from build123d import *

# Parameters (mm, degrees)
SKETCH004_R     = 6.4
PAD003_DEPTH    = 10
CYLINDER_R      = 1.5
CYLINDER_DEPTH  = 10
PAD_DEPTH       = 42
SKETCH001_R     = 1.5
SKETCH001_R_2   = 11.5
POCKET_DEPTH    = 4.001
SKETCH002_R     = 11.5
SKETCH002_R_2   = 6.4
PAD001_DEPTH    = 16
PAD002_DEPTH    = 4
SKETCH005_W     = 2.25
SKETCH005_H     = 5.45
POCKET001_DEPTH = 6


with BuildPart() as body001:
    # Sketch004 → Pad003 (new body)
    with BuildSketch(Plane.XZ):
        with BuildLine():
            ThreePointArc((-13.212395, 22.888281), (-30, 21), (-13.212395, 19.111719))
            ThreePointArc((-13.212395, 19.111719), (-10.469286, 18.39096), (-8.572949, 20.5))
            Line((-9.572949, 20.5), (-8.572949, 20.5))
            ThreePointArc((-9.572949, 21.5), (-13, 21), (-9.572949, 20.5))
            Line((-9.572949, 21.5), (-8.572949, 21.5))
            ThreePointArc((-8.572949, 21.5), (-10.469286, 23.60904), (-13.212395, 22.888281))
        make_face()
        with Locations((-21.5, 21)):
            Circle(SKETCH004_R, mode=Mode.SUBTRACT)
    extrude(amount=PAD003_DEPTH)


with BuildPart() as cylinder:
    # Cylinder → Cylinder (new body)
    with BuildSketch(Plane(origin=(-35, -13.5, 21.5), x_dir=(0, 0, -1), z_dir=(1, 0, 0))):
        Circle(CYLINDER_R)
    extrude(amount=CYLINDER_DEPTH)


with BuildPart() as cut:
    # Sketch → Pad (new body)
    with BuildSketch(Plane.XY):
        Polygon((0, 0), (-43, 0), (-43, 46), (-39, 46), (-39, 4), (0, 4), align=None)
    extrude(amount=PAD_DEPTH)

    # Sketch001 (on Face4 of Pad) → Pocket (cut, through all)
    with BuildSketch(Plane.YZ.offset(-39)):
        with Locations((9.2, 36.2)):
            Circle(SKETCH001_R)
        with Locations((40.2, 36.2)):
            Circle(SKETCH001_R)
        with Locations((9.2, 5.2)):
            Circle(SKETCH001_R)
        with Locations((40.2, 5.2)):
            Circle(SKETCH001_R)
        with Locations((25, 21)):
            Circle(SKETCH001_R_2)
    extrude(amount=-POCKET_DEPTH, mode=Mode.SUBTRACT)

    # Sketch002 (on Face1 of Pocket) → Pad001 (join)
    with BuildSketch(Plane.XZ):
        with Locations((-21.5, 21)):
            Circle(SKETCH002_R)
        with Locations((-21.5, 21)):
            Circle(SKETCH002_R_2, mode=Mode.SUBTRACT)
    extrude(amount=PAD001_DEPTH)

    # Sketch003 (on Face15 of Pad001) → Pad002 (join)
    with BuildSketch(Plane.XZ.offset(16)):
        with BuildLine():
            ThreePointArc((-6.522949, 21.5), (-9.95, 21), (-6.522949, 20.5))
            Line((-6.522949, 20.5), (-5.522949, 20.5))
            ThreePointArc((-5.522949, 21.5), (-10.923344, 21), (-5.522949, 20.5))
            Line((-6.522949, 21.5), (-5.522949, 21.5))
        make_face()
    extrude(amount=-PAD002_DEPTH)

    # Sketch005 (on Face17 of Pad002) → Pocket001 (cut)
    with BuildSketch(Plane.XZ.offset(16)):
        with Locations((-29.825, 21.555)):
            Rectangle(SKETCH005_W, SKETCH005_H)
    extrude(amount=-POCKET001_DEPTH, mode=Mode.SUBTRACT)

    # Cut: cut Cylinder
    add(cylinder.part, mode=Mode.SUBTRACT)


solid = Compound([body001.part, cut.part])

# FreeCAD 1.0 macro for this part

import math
import FreeCAD as App
import Part
import Sketcher
from FreeCAD import Vector


def add_polygon(sketch, points):
    """Adds a closed chain of lines whose ends are joined by coincident constraints."""
    first, n = sketch.GeometryCount, len(points)
    for a, b in zip(points, points[1:] + points[:1]):
        sketch.addGeometry(Part.LineSegment(App.Vector(*a, 0), App.Vector(*b, 0)), False)
    for i in range(n):
        sketch.addConstraint(Sketcher.Constraint("Coincident", first + i, 2, first + (i + 1) % n, 1))

doc = App.newDocument("Part")
body = doc.addObject("PartDesign::Body", "Body")

sketch1 = body.newObject("Sketcher::SketchObject", "Sketch")
sketch1.AttachmentSupport = (doc.getObject("XZ_Plane"), [""])
sketch1.MapMode = "FlatFace"
sketch1.addGeometry([
    Part.ArcOfCircle(Part.Circle(Vector(-21.5, 21, 0), Vector(0, 0, 1), 8.5), math.radians(13), math.radians(347)),
    Part.ArcOfCircle(Part.Circle(Vector(-11.2, 21, 0), Vector(0, 0, 1), 2.7), math.radians(-136), math.radians(-11)),
    Part.LineSegment(Vector(-8.6, 20.5, 0), Vector(-9.6, 20.5, 0)),
    Part.ArcOfCircle(Part.Circle(Vector(-11.2, 21, 0), Vector(0, 0, 1), 1.8), math.radians(17), math.radians(343)),
    Part.LineSegment(Vector(-9.6, 21.5, 0), Vector(-8.6, 21.5, 0)),
    Part.ArcOfCircle(Part.Circle(Vector(-11.2, 21, 0), Vector(0, 0, 1), 2.7), math.radians(11), math.radians(136)),
    Part.Circle(Vector(-21.5, 21, 0), Vector(0, 0, 1), 6.4),
], False)
sketch1.addConstraint([
    Sketcher.Constraint("Coincident", 0, 2, 1, 1),
    Sketcher.Constraint("Coincident", 1, 2, 2, 1),
    Sketcher.Constraint("Coincident", 2, 2, 3, 2),
    Sketcher.Constraint("Coincident", 3, 1, 4, 1),
    Sketcher.Constraint("Coincident", 4, 2, 5, 1),
    Sketcher.Constraint("Coincident", 5, 2, 0, 1),
    Sketcher.Constraint("Horizontal", 2),
    Sketcher.Constraint("Horizontal", 4),
    Sketcher.Constraint("Coincident", 3, 3, 1, 3),
    Sketcher.Constraint("Coincident", 5, 3, 1, 3),
    Sketcher.Constraint("Coincident", 6, 3, 0, 3),
    Sketcher.Constraint("Equal", 1, 5),
    Sketcher.Constraint("Horizontal", 0, 3, 1, 3),
    Sketcher.Constraint("Vertical", 2, 2, 3, 1),
    Sketcher.Constraint("Diameter", 6, 12.8),
    Sketcher.Constraint("Radius", 0, 8.5),
    Sketcher.Constraint("DistanceX", 2, 2, 2, 1, 1.0),
    Sketcher.Constraint("Radius", 3, 1.75),
    Sketcher.Constraint("DistanceY", -1, 1, 0, 3, 21.0),
    Sketcher.Constraint("DistanceY", 2, 2, 3, 1, 1.0),
    Sketcher.Constraint("DistanceX", 0, 3, -1, 1, 21.5),
    Sketcher.Constraint("DistanceX", 1, 3, -1, 1, 11.249999),
])
pad1 = body.newObject("PartDesign::Pad", "Pad")
pad1.Profile = sketch1
pad1.Length = 10
body2 = doc.addObject("PartDesign::Body", "Body001")

sketch2 = body2.newObject("Sketcher::SketchObject", "Sketch001")
sketch2.AttachmentSupport = (doc.getObject("YZ_Plane001"), [""])
sketch2.MapMode = "FlatFace"
sketch2.AttachmentOffset = App.Placement(Vector(0, 0, -35), App.Rotation())
sketch2.addGeometry(Part.Circle(Vector(-13.5, 21.5, 0), Vector(0, 0, 1), 1.5), False)
sketch2.addConstraint([
    Sketcher.Constraint("Diameter", 0, 3.0),
    Sketcher.Constraint("DistanceX", 0, 3, -1, 1, 13.5),
    Sketcher.Constraint("DistanceY", -1, 1, 0, 3, 21.5),
])
pad2 = body2.newObject("PartDesign::Pad", "Pad001")
pad2.Profile = sketch2
pad2.Length = 10
body3 = doc.addObject("PartDesign::Body", "Body002")

sketch3 = body3.newObject("Sketcher::SketchObject", "Sketch002")
sketch3.AttachmentSupport = (doc.getObject("XY_Plane002"), [""])
sketch3.MapMode = "FlatFace"
add_polygon(sketch3, [(-43, 0), (0, 0), (0, 4), (-39, 4), (-39, 46), (-43, 46)])
sketch3.addConstraint([
    Sketcher.Constraint("Horizontal", 0),
    Sketcher.Constraint("Vertical", 1),
    Sketcher.Constraint("Horizontal", 2),
    Sketcher.Constraint("Vertical", 3),
    Sketcher.Constraint("Horizontal", 4),
    Sketcher.Constraint("Vertical", 5),
    Sketcher.Constraint("Coincident", 0, 2, -1, 1),
    Sketcher.Constraint("Equal", 4, 1),
    Sketcher.Constraint("DistanceX", 0, 1, 0, 2, 43.0),
    Sketcher.Constraint("DistanceX", 2, 2, 2, 1, 39.0),
    Sketcher.Constraint("DistanceY", 3, 1, 3, 2, 42.0),
])
pad3 = body3.newObject("PartDesign::Pad", "Pad002")
pad3.Profile = sketch3
pad3.Length = 42

sketch4 = body3.newObject("Sketcher::SketchObject", "Sketch003")
sketch4.AttachmentSupport = (doc.getObject("YZ_Plane002"), [""])
sketch4.MapMode = "FlatFace"
sketch4.AttachmentOffset = App.Placement(Vector(0, 0, -39), App.Rotation())
sketch4.addGeometry([
    Part.Circle(Vector(9.2, 36.2, 0), Vector(0, 0, 1), 1.5),
    Part.Circle(Vector(40.2, 36.2, 0), Vector(0, 0, 1), 1.5),
    Part.Circle(Vector(9.2, 5.2, 0), Vector(0, 0, 1), 1.5),
    Part.Circle(Vector(40.2, 5.2, 0), Vector(0, 0, 1), 1.5),
    Part.Circle(Vector(25, 21, 0), Vector(0, 0, 1), 11.5),
], False)
sketch4.addConstraint([
    Sketcher.Constraint("Equal", 0, 1),
    Sketcher.Constraint("Equal", 1, 2),
    Sketcher.Constraint("Equal", 2, 3),
    Sketcher.Constraint("Horizontal", 0, 3, 1, 3),
    Sketcher.Constraint("Horizontal", 2, 3, 3, 3),
    Sketcher.Constraint("Vertical", 0, 3, 2, 3),
    Sketcher.Constraint("Vertical", 1, 3, 3, 3),
    Sketcher.Constraint("Diameter", 0, 3.0),
    Sketcher.Constraint("Diameter", 4, 23.0),
    Sketcher.Constraint("DistanceX", -1, 1, 4, 3, 25.0),
    Sketcher.Constraint("DistanceY", -1, 1, 4, 3, 21.0),
    Sketcher.Constraint("DistanceX", 0, 3, 1, 3, 31.0),
    Sketcher.Constraint("DistanceY", 2, 3, 0, 3, 31.0),
    Sketcher.Constraint("DistanceX", -1, 1, 0, 3, 9.2),
    Sketcher.Constraint("DistanceY", -1, 1, 0, 3, 36.2),
])
pocket1 = body3.newObject("PartDesign::Pocket", "Pocket")
pocket1.Profile = sketch4
pocket1.Type = "ThroughAll"

sketch5 = body3.newObject("Sketcher::SketchObject", "Sketch004")
sketch5.AttachmentSupport = (doc.getObject("XZ_Plane002"), [""])
sketch5.MapMode = "FlatFace"
sketch5.addGeometry([
    Part.Circle(Vector(-22, 21, 0), Vector(0, 0, 1), 12),
    Part.Circle(Vector(-22, 21, 0), Vector(0, 0, 1), 6),
], False)
sketch5.addConstraint([
    Sketcher.Constraint("Coincident", 1, 3, 0, 3),
    Sketcher.Constraint("Diameter", 0, 23.0),
    Sketcher.Constraint("Diameter", 1, 12.8),
    Sketcher.Constraint("DistanceY", -1, 1, 0, 3, 21.0),
    Sketcher.Constraint("DistanceX", 0, 3, -1, 1, 21.5),
])
pad4 = body3.newObject("PartDesign::Pad", "Pad003")
pad4.Profile = sketch5
pad4.Length = 16

sketch6 = body3.newObject("Sketcher::SketchObject", "Sketch005")
sketch6.AttachmentSupport = (doc.getObject("XZ_Plane002"), [""])
sketch6.MapMode = "FlatFace"
sketch6.AttachmentOffset = App.Placement(Vector(0, 0, 16), App.Rotation())
sketch6.addGeometry([
    Part.ArcOfCircle(Part.Circle(Vector(-8.2, 21, 0), Vector(0, 0, 1), 1.8), math.radians(17), math.radians(343)),
    Part.LineSegment(Vector(-6.5, 21.5, 0), Vector(-5.5, 21.5, 0)),
    Part.ArcOfCircle(Part.Circle(Vector(-8.2, 21, 0), Vector(0, 0, 1), 2.7), math.radians(11), math.radians(349)),
    Part.LineSegment(Vector(-5.5, 20.5, 0), Vector(-6.5, 20.5, 0)),
], False)
sketch6.addConstraint([
    Sketcher.Constraint("Coincident", 0, 1, 1, 1),
    Sketcher.Constraint("Coincident", 1, 2, 2, 1),
    Sketcher.Constraint("Coincident", 2, 2, 3, 1),
    Sketcher.Constraint("Coincident", 3, 2, 0, 2),
    Sketcher.Constraint("Horizontal", 1),
    Sketcher.Constraint("Horizontal", 3),
    Sketcher.Constraint("Coincident", 2, 3, 0, 3),
    Sketcher.Constraint("Vertical", 1, 2, 2, 2),
    Sketcher.Constraint("DistanceX", 1, 1, 1, 2, 1.0),
    Sketcher.Constraint("Radius", 0, 1.75),
    Sketcher.Constraint("DistanceY", -1, 1, 0, 3, 21.0),
    Sketcher.Constraint("DistanceY", 2, 2, 1, 2, 1.0),
    Sketcher.Constraint("DistanceX", 0, 3, -1, 1, 8.2),
])
pad5 = body3.newObject("PartDesign::Pad", "Pad004")
pad5.Profile = sketch6
pad5.Length = 4
pad5.Reversed = True

sketch7 = body3.newObject("Sketcher::SketchObject", "Sketch006")
sketch7.AttachmentSupport = (doc.getObject("XZ_Plane002"), [""])
sketch7.MapMode = "FlatFace"
sketch7.AttachmentOffset = App.Placement(Vector(0, 0, 16), App.Rotation())
add_polygon(sketch7, [(-30.9, 24.3), (-30.9, 18.8), (-28.7, 18.8), (-28.7, 24.3)])
sketch7.addConstraint([
    Sketcher.Constraint("Vertical", 0),
    Sketcher.Constraint("Horizontal", 1),
    Sketcher.Constraint("Vertical", 2),
    Sketcher.Constraint("Horizontal", 3),
    Sketcher.Constraint("DistanceX", 1, 1, 1, 2, 2.25),
    Sketcher.Constraint("DistanceY", 0, 2, 0, 1, 5.45),
    Sketcher.Constraint("DistanceX", 1, 2, -1, 1, 28.7),
    Sketcher.Constraint("DistanceY", -1, 1, 0, 2, 18.83),
])
pocket2 = body3.newObject("PartDesign::Pocket", "Pocket001")
pocket2.Profile = sketch7
pocket2.Length = 6
doc.recompute()

boolean = body3.newObject("PartDesign::Boolean", "Boolean")
boolean.Type = "Cut"
boolean.addObjects([body2])

doc.recompute()
